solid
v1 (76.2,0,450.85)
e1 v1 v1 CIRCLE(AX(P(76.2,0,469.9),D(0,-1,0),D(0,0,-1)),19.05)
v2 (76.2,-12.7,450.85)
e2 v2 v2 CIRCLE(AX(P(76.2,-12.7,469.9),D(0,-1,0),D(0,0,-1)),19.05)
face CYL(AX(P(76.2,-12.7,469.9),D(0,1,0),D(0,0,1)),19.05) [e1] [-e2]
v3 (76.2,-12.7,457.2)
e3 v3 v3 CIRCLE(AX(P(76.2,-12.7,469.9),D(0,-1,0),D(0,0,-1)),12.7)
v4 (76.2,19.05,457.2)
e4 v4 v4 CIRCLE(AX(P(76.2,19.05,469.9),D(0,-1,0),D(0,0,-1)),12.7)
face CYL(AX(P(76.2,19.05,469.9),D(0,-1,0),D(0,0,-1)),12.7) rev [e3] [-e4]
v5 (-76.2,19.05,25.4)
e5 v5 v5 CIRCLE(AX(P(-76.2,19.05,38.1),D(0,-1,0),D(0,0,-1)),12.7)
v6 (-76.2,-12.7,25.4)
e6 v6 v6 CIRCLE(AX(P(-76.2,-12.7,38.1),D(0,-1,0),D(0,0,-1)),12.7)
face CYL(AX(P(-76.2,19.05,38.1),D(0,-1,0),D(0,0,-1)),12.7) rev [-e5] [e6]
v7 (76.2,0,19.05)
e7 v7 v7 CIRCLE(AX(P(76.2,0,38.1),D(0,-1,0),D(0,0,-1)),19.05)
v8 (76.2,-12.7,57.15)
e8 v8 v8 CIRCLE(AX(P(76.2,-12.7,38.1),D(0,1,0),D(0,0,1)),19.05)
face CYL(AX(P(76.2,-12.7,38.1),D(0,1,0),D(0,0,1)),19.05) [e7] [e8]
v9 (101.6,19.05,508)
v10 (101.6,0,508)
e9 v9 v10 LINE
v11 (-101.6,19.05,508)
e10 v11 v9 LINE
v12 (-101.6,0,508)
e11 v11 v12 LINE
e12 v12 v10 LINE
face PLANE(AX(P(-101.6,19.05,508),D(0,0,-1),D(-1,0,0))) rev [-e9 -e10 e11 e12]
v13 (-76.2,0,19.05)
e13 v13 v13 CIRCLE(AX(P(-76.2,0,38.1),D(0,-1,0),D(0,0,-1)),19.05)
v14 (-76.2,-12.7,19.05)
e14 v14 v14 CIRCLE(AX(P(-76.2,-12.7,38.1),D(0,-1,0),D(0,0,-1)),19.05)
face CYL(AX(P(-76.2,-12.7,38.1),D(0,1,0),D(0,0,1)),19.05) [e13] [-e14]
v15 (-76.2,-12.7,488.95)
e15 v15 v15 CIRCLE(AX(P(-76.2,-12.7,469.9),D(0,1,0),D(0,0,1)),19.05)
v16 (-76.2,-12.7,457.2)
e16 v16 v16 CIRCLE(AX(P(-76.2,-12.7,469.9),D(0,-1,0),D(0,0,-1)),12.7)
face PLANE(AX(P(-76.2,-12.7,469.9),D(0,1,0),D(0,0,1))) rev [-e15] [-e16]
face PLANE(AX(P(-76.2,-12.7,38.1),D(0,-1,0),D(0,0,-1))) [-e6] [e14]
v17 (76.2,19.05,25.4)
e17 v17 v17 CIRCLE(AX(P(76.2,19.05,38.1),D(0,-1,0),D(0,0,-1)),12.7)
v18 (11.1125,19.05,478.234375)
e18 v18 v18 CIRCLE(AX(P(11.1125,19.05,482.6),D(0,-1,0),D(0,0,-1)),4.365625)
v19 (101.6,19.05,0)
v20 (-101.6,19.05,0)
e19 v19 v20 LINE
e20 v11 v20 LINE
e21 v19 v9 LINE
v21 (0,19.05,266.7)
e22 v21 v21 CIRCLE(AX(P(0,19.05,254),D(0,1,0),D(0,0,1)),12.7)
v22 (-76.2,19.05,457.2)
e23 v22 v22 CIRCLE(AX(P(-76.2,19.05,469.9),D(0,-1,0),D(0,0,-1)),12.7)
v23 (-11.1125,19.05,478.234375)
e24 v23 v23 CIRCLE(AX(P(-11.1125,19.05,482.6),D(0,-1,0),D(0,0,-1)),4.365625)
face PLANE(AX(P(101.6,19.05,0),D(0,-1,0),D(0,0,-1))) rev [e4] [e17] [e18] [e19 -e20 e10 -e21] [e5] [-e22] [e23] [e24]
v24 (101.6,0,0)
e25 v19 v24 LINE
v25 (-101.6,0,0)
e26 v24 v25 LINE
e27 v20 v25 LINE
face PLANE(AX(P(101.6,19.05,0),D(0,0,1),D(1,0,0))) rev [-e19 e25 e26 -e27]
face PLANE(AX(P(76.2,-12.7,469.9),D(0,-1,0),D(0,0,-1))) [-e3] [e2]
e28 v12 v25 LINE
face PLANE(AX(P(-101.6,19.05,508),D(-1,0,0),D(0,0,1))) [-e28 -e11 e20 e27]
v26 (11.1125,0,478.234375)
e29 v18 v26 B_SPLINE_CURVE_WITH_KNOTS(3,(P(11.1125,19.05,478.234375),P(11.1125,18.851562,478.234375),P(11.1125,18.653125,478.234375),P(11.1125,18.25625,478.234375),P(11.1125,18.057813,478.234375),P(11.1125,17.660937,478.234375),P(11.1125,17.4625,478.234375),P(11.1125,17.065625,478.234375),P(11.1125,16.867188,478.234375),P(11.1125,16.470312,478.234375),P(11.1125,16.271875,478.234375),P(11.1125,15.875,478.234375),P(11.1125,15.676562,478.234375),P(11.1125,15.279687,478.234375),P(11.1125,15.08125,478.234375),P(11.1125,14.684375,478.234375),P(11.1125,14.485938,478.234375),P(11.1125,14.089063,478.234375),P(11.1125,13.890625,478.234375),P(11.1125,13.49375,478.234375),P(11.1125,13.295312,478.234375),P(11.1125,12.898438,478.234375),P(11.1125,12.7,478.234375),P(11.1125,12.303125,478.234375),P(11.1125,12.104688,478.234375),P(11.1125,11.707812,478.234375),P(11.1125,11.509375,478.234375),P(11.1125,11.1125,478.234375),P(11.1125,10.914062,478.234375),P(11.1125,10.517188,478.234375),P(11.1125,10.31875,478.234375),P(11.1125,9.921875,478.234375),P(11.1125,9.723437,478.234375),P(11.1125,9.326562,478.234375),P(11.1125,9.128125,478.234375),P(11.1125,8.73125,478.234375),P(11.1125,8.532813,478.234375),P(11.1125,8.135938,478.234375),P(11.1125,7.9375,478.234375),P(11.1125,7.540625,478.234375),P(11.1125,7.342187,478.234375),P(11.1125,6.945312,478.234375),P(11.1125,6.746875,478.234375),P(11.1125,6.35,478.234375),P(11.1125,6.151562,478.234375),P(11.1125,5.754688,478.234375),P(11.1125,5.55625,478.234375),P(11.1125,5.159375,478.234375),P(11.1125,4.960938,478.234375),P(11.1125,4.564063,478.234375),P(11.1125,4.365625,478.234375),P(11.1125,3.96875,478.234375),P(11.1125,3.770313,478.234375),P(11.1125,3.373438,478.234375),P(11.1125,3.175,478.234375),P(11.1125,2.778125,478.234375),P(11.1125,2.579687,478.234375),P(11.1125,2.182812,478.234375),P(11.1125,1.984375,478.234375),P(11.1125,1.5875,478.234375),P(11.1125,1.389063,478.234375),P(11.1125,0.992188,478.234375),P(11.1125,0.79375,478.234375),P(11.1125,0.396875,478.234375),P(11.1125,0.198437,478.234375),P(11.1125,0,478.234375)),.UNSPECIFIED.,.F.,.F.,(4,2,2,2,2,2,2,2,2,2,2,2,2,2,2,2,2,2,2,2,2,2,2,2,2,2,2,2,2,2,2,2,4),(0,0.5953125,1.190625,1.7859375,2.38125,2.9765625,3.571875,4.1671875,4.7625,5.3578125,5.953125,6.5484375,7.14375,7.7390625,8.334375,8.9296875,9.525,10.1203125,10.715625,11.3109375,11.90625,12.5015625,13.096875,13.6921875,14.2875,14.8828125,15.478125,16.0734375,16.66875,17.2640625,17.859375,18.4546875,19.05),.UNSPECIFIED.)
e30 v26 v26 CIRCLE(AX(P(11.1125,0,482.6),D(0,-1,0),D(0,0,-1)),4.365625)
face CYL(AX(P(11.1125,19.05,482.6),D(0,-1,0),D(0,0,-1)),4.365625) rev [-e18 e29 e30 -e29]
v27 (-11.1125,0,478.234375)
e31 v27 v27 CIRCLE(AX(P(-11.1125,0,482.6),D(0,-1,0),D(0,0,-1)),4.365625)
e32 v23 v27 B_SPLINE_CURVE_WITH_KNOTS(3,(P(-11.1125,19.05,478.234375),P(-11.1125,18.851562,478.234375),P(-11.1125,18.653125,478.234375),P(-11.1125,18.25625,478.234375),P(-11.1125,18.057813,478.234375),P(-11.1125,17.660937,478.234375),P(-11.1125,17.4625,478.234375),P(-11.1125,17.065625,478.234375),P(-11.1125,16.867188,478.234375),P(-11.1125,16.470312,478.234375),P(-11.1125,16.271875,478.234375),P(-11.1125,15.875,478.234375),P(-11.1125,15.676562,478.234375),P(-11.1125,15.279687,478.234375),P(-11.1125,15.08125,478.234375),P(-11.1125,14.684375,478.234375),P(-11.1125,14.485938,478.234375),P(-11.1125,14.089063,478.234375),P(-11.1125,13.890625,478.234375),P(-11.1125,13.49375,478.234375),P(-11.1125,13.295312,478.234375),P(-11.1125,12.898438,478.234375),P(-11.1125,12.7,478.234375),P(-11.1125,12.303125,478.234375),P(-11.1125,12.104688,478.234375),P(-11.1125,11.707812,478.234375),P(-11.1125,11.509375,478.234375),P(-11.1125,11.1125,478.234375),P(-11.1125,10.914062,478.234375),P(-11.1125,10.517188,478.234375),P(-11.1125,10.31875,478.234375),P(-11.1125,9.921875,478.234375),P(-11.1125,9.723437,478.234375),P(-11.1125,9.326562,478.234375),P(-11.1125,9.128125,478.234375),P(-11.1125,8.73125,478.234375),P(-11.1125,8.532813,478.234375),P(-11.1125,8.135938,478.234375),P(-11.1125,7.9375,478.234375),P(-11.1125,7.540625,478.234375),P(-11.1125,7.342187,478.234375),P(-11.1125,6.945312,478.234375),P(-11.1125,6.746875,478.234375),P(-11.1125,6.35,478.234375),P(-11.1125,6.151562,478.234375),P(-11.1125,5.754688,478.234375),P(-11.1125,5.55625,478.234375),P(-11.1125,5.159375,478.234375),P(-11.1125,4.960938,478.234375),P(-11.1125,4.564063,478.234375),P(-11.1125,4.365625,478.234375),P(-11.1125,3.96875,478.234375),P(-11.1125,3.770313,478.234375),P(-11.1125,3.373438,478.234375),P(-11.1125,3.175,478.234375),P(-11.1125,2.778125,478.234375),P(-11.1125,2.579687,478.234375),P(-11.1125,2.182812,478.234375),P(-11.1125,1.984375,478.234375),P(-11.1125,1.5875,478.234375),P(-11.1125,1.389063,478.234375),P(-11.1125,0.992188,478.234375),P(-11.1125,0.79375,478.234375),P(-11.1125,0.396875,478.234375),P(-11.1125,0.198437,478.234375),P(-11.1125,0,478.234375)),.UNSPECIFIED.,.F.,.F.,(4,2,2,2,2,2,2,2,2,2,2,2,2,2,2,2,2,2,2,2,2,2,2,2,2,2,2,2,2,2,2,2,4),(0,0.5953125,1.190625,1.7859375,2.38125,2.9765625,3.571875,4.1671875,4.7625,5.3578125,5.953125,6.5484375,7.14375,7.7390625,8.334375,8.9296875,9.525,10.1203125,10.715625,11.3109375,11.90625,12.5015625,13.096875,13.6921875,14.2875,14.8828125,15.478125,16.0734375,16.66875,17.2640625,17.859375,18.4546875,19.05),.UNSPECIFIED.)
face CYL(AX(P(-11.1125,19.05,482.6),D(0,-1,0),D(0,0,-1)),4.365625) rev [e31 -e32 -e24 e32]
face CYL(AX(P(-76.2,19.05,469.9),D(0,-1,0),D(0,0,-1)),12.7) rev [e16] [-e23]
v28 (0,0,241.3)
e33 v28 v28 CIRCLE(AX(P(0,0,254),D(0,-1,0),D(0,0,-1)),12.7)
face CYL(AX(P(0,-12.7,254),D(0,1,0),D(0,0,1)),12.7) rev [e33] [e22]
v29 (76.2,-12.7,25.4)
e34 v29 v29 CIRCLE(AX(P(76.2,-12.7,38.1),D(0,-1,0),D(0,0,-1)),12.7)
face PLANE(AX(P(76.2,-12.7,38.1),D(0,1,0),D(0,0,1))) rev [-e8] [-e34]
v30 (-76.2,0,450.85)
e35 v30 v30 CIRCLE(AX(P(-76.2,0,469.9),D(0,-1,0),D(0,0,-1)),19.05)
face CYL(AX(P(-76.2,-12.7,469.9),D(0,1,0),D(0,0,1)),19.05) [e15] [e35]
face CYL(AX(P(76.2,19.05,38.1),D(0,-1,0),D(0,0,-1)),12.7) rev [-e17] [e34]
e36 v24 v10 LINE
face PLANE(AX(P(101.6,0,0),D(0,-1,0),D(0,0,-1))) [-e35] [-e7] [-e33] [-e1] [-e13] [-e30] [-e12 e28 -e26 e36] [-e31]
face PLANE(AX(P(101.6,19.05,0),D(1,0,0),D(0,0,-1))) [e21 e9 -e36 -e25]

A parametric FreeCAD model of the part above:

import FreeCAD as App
import Part
import Sketcher
from FreeCAD import Vector
Q = App.Units.Quantity


def add_polygon(sketch, points):
    """Adds a closed chain of lines whose ends are joined by coincident constraints."""
    first, n = sketch.GeometryCount, len(points)
    for a, b in zip(points, points[1:] + points[:1]):
        sketch.addGeometry(Part.LineSegment(App.Vector(*a, 0), App.Vector(*b, 0)), False)
    for i in range(n):
        sketch.addConstraint(Sketcher.Constraint("Coincident", first + i, 2, first + (i + 1) % n, 1))

doc = App.newDocument("Part")
body = doc.addObject("PartDesign::Body", "Body")

# Sketch on XZ plane
sketch1 = doc.addObject("Sketcher::SketchObject", "Sketch")
body.addObject(sketch1)
sketch1.AttachmentSupport = (doc.XZ_Plane, [""])
sketch1.MapMode = "FlatFace"
add_polygon(sketch1, [(-102, 0), (-102, 508), (102, 508), (102, 0)])  # lines 0-3
sketch1.addConstraint([
    Sketcher.Constraint("Vertical", 0),
    Sketcher.Constraint("Horizontal", 1),
    Sketcher.Constraint("Vertical", 2),
    Sketcher.Constraint("Horizontal", 3),
    Sketcher.Constraint("Symmetric", 2, 2, 3, 2, -1, 1),
    Sketcher.Constraint("DistanceX", 1, 1, 1, 2, Q("8 in")),
    Sketcher.Constraint("DistanceY", 0, 1, 0, 2, Q("20 in")),
])
pad1 = doc.addObject("PartDesign::Pad", "Pad")
body.addObject(pad1)
pad1.Profile = sketch1
pad1.Length = Q("0.75 in")
pad1.Reversed = True

# Sketch on XZ plane
sketch2 = doc.addObject("Sketcher::SketchObject", "Sketch001")
body.addObject(sketch2)
sketch2.AttachmentSupport = (doc.XZ_Plane, [""])
sketch2.MapMode = "FlatFace"
sketch2.addGeometry([
    Part.Circle(Vector(76, 470, 0), Vector(0, 0, 1), 19),
    Part.Circle(Vector(76, 38, 0), Vector(0, 0, 1), 19),
    Part.Circle(Vector(-76, 38, 0), Vector(0, 0, 1), 19),
    Part.Circle(Vector(-76, 470, 0), Vector(0, 0, 1), 19),
], False)
sketch2.addConstraint([
    Sketcher.Constraint("Equal", 0, 1),
    Sketcher.Constraint("Equal", 1, 2),
    Sketcher.Constraint("Equal", 2, 3),
    Sketcher.Constraint("Symmetric", 1, 3, 2, 3, -2),
    Sketcher.Constraint("Symmetric", 0, 3, 3, 3, -2),
    Sketcher.Constraint("Vertical", 0, 3, 1, 3),
    Sketcher.Constraint("Diameter", 0, Q("1.5 in")),
    Sketcher.Constraint("DistanceX", -1, 1, 0, 3, Q("3 in")),
    Sketcher.Constraint("DistanceY", 1, 3, 0, 3, Q("17 in")),
    Sketcher.Constraint("DistanceY", -1, 1, 0, 3, Q("18.5 in")),
])
pad2 = doc.addObject("PartDesign::Pad", "Pad001")
body.addObject(pad2)
pad2.Profile = sketch2
pad2.Length = Q("0.5 in")

# Sketch on XZ plane
sketch3 = doc.addObject("Sketcher::SketchObject", "Sketch002")
body.addObject(sketch3)
sketch3.AttachmentSupport = (doc.XZ_Plane, [""])
sketch3.MapMode = "FlatFace"
sketch3.AttachmentOffset = App.Placement(Vector(0, 0, 0.5 * 25.4), App.Rotation())
sketch3.addGeometry([
    Part.Circle(Vector(76, 470, 0), Vector(0, 0, 1), 13),
    Part.Circle(Vector(-76, 470, 0), Vector(0, 0, 1), 13),
    Part.Circle(Vector(76, 38, 0), Vector(0, 0, 1), 13),
    Part.Circle(Vector(-76, 38, 0), Vector(0, 0, 1), 13),
], False)
sketch3.addConstraint([
    Sketcher.Constraint("Equal", 0, 1),
    Sketcher.Constraint("Equal", 1, 2),
    Sketcher.Constraint("Equal", 2, 3),
    Sketcher.Constraint("Symmetric", 0, 3, 1, 3, -2),
    Sketcher.Constraint("Symmetric", 2, 3, 3, 3, -2),
    Sketcher.Constraint("Vertical", 0, 3, 2, 3),
    Sketcher.Constraint("Diameter", 0, Q("1 in")),
    Sketcher.Constraint("DistanceX", -1, 1, 0, 3, Q("3 in")),
    Sketcher.Constraint("DistanceY", 2, 3, 0, 3, Q("17 in")),
    Sketcher.Constraint("DistanceY", -1, 1, 0, 3, Q("18.5 in")),
])
pocket1 = doc.addObject("PartDesign::Pocket", "Pocket")
body.addObject(pocket1)
pocket1.Profile = sketch3
pocket1.Type = "ThroughAll"

# Sketch on XZ plane
sketch4 = doc.addObject("Sketcher::SketchObject", "Sketch003")
body.addObject(sketch4)
sketch4.AttachmentSupport = (doc.XZ_Plane, [""])
sketch4.MapMode = "FlatFace"
sketch4.AttachmentOffset = App.Placement(Vector(0, 0, -0.75 * 25.4), App.Rotation())
sketch4.addGeometry(Part.Circle(Vector(0, 254, 0), Vector(0, 0, 1), 13), False)
sketch4.addConstraint([
    Sketcher.Constraint("PointOnObject", 0, 3, -2),
    Sketcher.Constraint("Diameter", 0, Q("1 in")),
    Sketcher.Constraint("DistanceY", -1, 1, 0, 3, Q("10 in")),
])
pocket2 = doc.addObject("PartDesign::Pocket", "Pocket001")
body.addObject(pocket2)
pocket2.Profile = sketch4
pocket2.Type = "ThroughAll"
pocket2.Reversed = True

# Sketch on XZ plane
sketch5 = doc.addObject("Sketcher::SketchObject", "Sketch004")
body.addObject(sketch5)
sketch5.AttachmentSupport = (doc.XZ_Plane, [""])
sketch5.MapMode = "FlatFace"
sketch5.addGeometry([
    Part.Circle(Vector(11.1, 482.6, 0), Vector(0, 0, 1), 4.4),
    Part.Circle(Vector(-11.1, 482.6, 0), Vector(0, 0, 1), 4.4),
], False)
sketch5.addConstraint([
    Sketcher.Constraint("Equal", 0, 1),
    Sketcher.Constraint("Symmetric", 0, 3, 1, 3, -2),
    Sketcher.Constraint("Diameter", 0, Q("0.34375 in")),
    Sketcher.Constraint("DistanceY", -1, 1, 0, 3, Q("19 in")),
    Sketcher.Constraint("DistanceX", -1, 1, 0, 3, Q("0.4375 in")),
])
pocket3 = doc.addObject("PartDesign::Pocket", "Pocket002")
body.addObject(pocket3)
pocket3.Profile = sketch5
pocket3.Type = "ThroughAll"

doc.recompute()
